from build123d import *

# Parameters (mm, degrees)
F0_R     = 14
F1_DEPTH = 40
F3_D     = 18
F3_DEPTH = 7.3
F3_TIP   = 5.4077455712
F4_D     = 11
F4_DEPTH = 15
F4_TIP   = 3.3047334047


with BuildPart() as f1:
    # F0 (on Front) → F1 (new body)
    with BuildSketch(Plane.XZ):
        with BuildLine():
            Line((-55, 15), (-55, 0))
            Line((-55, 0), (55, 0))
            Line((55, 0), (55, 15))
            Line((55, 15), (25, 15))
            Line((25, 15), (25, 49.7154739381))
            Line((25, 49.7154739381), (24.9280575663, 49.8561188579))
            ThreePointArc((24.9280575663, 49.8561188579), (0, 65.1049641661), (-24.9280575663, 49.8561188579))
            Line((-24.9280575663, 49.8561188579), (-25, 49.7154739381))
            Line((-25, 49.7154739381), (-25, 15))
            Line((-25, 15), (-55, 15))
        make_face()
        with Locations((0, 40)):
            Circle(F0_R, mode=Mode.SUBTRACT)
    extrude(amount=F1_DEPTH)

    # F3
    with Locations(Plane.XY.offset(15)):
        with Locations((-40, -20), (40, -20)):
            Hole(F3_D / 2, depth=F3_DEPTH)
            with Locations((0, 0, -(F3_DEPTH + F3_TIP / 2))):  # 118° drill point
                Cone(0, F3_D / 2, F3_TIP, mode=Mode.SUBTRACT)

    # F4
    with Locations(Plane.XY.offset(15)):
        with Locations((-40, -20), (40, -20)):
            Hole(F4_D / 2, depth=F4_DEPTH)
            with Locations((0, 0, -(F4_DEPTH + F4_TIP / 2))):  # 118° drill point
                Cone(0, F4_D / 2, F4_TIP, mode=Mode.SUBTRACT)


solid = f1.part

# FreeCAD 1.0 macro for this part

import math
import FreeCAD as App
import Part
import Sketcher

V = App.Vector
Q = App.Units.Quantity

doc = App.newDocument("Part")
body = doc.addObject("PartDesign::Body", "Body")

sketch1 = doc.addObject("Sketcher::SketchObject", "Sketch")
body.addObject(sketch1)
sketch1.AttachmentSupport = (doc.XZ_Plane, [""])
sketch1.MapMode = "FlatFace"
sketch1.addGeometry(Part.LineSegment(V(-55, 15, 0), V(-55, 0, 0)), False)
sketch1.addGeometry(Part.LineSegment(V(-55, 0, 0), V(55, 0, 0)), False)
sketch1.addGeometry(Part.LineSegment(V(55, 0, 0), V(55, 15, 0)), False)
sketch1.addGeometry(Part.LineSegment(V(55, 15, 0), V(25, 15, 0)), False)
sketch1.addGeometry(Part.LineSegment(V(25, 15, 0), V(25, 49.715474, 0)), False)
sketch1.addGeometry(Part.LineSegment(V(25, 49.715474, 0), V(24.928058, 49.856119, 0)), False)
sketch1.addGeometry(Part.ArcOfCircle(Part.Circle(V(0, 37.104964, 0), V(0, 0, 1), 28), math.radians(27.09057), math.radians(152.90943)), False)
sketch1.addGeometry(Part.LineSegment(V(-24.928058, 49.856119, 0), V(-25, 49.715474, 0)), False)
sketch1.addGeometry(Part.LineSegment(V(-25, 49.715474, 0), V(-25, 15, 0)), False)
sketch1.addGeometry(Part.LineSegment(V(-25, 15, 0), V(-55, 15, 0)), False)
sketch1.addGeometry(Part.Circle(V(0, 40, 0), V(0, 0, 1), 14), False)
sketch1.addConstraint(Sketcher.Constraint("Coincident", 0, 2, 1, 1))
sketch1.addConstraint(Sketcher.Constraint("Coincident", 1, 2, 2, 1))
sketch1.addConstraint(Sketcher.Constraint("Coincident", 2, 2, 3, 1))
sketch1.addConstraint(Sketcher.Constraint("Coincident", 3, 2, 4, 1))
sketch1.addConstraint(Sketcher.Constraint("Coincident", 4, 2, 5, 1))
sketch1.addConstraint(Sketcher.Constraint("Tangent", 5, 2, 6, 1))
sketch1.addConstraint(Sketcher.Constraint("Tangent", 6, 2, 7, 1))
sketch1.addConstraint(Sketcher.Constraint("Coincident", 7, 2, 8, 1))
sketch1.addConstraint(Sketcher.Constraint("Coincident", 8, 2, 9, 1))
sketch1.addConstraint(Sketcher.Constraint("Coincident", 9, 2, 0, 1))
sketch1.addConstraint(Sketcher.Constraint("Vertical", 0))
sketch1.addConstraint(Sketcher.Constraint("Horizontal", 1))
sketch1.addConstraint(Sketcher.Constraint("Vertical", 2))
sketch1.addConstraint(Sketcher.Constraint("Horizontal", 3))
sketch1.addConstraint(Sketcher.Constraint("Vertical", 4))
sketch1.addConstraint(Sketcher.Constraint("Vertical", 8))
sketch1.addConstraint(Sketcher.Constraint("Horizontal", 9))
sketch1.addConstraint(Sketcher.Constraint("Symmetric", 0, 2, 1, 2, -1, 1))
sketch1.addConstraint(Sketcher.Constraint("Symmetric", 5, 2, 6, 2, -2))
sketch1.addConstraint(Sketcher.Constraint("Symmetric", 3, 2, 8, 2, -2))
sketch1.addConstraint(Sketcher.Constraint("PointOnObject", 10, 3, -2))
sketch1.addConstraint(Sketcher.Constraint("Diameter", 10, Q("28 mm")))
sketch1.addConstraint(Sketcher.Constraint("Radius", 6, Q("28 mm")))
sketch1.addConstraint(Sketcher.Constraint("DistanceX", 1, 1, 1, 2, Q("110 mm")))
sketch1.addConstraint(Sketcher.Constraint("DistanceX", 3, 2, 3, 1, Q("30 mm")))
sketch1.addConstraint(Sketcher.Constraint("DistanceY", 0, 2, 0, 1, Q("15 mm")))
sketch1.addConstraint(Sketcher.Constraint("DistanceY", -1, 1, 10, 3, Q("40 mm")))
sketch1.addConstraint(Sketcher.Constraint("DistanceY", 4, 1, 4, 2, Q("34.715474 mm")))
sketch1.addConstraint(Sketcher.Constraint("DistanceY", -1, 1, 5, 2, Q("49.856119 mm")))
pad1 = doc.addObject("PartDesign::Pad", "Pad")
body.addObject(pad1)
pad1.Profile = sketch1
pad1.Length = 40

sketch2 = doc.addObject("Sketcher::SketchObject", "Sketch001")
body.addObject(sketch2)
sketch2.AttachmentSupport = (doc.XY_Plane, [""])
sketch2.MapMode = "FlatFace"
sketch2.AttachmentOffset = App.Placement(V(0, 0, 15), App.Rotation())
sketch2.addGeometry(Part.Circle(V(-40, -20, 0), V(0, 0, 1), 9), False)
sketch2.addGeometry(Part.Circle(V(40, -20, 0), V(0, 0, 1), 9), False)
sketch2.addConstraint(Sketcher.Constraint("Equal", 0, 1))
sketch2.addConstraint(Sketcher.Constraint("Symmetric", 0, 3, 1, 3, -2))
sketch2.addConstraint(Sketcher.Constraint("Diameter", 0, Q("18 mm")))
sketch2.addConstraint(Sketcher.Constraint("DistanceX", 0, 3, -1, 1, Q("40 mm")))
sketch2.addConstraint(Sketcher.Constraint("DistanceY", 0, 3, -1, 1, Q("20 mm")))
doc.recompute()
hole = doc.addObject("PartDesign::Hole", "Hole")
body.addObject(hole)
hole.Profile = sketch2
hole.ThreadType = "None"
hole.Diameter = 18
hole.DepthType = "Dimension"
hole.Depth = 7.3
hole.DrillPoint = "Angled"
hole.DrillPointAngle = 118

sketch3 = doc.addObject("Sketcher::SketchObject", "Sketch002")
body.addObject(sketch3)
sketch3.AttachmentSupport = (doc.XY_Plane, [""])
sketch3.MapMode = "FlatFace"
sketch3.AttachmentOffset = App.Placement(V(0, 0, 15), App.Rotation())
sketch3.addGeometry(Part.Circle(V(-40, -20, 0), V(0, 0, 1), 5.5), False)
sketch3.addGeometry(Part.Circle(V(40, -20, 0), V(0, 0, 1), 5.5), False)
sketch3.addConstraint(Sketcher.Constraint("Equal", 0, 1))
sketch3.addConstraint(Sketcher.Constraint("Symmetric", 0, 3, 1, 3, -2))
sketch3.addConstraint(Sketcher.Constraint("Diameter", 0, Q("11 mm")))
sketch3.addConstraint(Sketcher.Constraint("DistanceX", 0, 3, -1, 1, Q("40 mm")))
sketch3.addConstraint(Sketcher.Constraint("DistanceY", 0, 3, -1, 1, Q("20 mm")))
doc.recompute()
hole2 = doc.addObject("PartDesign::Hole", "Hole001")
body.addObject(hole2)
hole2.Profile = sketch3
hole2.ThreadType = "None"
hole2.Diameter = 11
hole2.DepthType = "Dimension"
hole2.Depth = 15
hole2.DrillPoint = "Angled"
hole2.DrillPointAngle = 118

doc.recompute()
